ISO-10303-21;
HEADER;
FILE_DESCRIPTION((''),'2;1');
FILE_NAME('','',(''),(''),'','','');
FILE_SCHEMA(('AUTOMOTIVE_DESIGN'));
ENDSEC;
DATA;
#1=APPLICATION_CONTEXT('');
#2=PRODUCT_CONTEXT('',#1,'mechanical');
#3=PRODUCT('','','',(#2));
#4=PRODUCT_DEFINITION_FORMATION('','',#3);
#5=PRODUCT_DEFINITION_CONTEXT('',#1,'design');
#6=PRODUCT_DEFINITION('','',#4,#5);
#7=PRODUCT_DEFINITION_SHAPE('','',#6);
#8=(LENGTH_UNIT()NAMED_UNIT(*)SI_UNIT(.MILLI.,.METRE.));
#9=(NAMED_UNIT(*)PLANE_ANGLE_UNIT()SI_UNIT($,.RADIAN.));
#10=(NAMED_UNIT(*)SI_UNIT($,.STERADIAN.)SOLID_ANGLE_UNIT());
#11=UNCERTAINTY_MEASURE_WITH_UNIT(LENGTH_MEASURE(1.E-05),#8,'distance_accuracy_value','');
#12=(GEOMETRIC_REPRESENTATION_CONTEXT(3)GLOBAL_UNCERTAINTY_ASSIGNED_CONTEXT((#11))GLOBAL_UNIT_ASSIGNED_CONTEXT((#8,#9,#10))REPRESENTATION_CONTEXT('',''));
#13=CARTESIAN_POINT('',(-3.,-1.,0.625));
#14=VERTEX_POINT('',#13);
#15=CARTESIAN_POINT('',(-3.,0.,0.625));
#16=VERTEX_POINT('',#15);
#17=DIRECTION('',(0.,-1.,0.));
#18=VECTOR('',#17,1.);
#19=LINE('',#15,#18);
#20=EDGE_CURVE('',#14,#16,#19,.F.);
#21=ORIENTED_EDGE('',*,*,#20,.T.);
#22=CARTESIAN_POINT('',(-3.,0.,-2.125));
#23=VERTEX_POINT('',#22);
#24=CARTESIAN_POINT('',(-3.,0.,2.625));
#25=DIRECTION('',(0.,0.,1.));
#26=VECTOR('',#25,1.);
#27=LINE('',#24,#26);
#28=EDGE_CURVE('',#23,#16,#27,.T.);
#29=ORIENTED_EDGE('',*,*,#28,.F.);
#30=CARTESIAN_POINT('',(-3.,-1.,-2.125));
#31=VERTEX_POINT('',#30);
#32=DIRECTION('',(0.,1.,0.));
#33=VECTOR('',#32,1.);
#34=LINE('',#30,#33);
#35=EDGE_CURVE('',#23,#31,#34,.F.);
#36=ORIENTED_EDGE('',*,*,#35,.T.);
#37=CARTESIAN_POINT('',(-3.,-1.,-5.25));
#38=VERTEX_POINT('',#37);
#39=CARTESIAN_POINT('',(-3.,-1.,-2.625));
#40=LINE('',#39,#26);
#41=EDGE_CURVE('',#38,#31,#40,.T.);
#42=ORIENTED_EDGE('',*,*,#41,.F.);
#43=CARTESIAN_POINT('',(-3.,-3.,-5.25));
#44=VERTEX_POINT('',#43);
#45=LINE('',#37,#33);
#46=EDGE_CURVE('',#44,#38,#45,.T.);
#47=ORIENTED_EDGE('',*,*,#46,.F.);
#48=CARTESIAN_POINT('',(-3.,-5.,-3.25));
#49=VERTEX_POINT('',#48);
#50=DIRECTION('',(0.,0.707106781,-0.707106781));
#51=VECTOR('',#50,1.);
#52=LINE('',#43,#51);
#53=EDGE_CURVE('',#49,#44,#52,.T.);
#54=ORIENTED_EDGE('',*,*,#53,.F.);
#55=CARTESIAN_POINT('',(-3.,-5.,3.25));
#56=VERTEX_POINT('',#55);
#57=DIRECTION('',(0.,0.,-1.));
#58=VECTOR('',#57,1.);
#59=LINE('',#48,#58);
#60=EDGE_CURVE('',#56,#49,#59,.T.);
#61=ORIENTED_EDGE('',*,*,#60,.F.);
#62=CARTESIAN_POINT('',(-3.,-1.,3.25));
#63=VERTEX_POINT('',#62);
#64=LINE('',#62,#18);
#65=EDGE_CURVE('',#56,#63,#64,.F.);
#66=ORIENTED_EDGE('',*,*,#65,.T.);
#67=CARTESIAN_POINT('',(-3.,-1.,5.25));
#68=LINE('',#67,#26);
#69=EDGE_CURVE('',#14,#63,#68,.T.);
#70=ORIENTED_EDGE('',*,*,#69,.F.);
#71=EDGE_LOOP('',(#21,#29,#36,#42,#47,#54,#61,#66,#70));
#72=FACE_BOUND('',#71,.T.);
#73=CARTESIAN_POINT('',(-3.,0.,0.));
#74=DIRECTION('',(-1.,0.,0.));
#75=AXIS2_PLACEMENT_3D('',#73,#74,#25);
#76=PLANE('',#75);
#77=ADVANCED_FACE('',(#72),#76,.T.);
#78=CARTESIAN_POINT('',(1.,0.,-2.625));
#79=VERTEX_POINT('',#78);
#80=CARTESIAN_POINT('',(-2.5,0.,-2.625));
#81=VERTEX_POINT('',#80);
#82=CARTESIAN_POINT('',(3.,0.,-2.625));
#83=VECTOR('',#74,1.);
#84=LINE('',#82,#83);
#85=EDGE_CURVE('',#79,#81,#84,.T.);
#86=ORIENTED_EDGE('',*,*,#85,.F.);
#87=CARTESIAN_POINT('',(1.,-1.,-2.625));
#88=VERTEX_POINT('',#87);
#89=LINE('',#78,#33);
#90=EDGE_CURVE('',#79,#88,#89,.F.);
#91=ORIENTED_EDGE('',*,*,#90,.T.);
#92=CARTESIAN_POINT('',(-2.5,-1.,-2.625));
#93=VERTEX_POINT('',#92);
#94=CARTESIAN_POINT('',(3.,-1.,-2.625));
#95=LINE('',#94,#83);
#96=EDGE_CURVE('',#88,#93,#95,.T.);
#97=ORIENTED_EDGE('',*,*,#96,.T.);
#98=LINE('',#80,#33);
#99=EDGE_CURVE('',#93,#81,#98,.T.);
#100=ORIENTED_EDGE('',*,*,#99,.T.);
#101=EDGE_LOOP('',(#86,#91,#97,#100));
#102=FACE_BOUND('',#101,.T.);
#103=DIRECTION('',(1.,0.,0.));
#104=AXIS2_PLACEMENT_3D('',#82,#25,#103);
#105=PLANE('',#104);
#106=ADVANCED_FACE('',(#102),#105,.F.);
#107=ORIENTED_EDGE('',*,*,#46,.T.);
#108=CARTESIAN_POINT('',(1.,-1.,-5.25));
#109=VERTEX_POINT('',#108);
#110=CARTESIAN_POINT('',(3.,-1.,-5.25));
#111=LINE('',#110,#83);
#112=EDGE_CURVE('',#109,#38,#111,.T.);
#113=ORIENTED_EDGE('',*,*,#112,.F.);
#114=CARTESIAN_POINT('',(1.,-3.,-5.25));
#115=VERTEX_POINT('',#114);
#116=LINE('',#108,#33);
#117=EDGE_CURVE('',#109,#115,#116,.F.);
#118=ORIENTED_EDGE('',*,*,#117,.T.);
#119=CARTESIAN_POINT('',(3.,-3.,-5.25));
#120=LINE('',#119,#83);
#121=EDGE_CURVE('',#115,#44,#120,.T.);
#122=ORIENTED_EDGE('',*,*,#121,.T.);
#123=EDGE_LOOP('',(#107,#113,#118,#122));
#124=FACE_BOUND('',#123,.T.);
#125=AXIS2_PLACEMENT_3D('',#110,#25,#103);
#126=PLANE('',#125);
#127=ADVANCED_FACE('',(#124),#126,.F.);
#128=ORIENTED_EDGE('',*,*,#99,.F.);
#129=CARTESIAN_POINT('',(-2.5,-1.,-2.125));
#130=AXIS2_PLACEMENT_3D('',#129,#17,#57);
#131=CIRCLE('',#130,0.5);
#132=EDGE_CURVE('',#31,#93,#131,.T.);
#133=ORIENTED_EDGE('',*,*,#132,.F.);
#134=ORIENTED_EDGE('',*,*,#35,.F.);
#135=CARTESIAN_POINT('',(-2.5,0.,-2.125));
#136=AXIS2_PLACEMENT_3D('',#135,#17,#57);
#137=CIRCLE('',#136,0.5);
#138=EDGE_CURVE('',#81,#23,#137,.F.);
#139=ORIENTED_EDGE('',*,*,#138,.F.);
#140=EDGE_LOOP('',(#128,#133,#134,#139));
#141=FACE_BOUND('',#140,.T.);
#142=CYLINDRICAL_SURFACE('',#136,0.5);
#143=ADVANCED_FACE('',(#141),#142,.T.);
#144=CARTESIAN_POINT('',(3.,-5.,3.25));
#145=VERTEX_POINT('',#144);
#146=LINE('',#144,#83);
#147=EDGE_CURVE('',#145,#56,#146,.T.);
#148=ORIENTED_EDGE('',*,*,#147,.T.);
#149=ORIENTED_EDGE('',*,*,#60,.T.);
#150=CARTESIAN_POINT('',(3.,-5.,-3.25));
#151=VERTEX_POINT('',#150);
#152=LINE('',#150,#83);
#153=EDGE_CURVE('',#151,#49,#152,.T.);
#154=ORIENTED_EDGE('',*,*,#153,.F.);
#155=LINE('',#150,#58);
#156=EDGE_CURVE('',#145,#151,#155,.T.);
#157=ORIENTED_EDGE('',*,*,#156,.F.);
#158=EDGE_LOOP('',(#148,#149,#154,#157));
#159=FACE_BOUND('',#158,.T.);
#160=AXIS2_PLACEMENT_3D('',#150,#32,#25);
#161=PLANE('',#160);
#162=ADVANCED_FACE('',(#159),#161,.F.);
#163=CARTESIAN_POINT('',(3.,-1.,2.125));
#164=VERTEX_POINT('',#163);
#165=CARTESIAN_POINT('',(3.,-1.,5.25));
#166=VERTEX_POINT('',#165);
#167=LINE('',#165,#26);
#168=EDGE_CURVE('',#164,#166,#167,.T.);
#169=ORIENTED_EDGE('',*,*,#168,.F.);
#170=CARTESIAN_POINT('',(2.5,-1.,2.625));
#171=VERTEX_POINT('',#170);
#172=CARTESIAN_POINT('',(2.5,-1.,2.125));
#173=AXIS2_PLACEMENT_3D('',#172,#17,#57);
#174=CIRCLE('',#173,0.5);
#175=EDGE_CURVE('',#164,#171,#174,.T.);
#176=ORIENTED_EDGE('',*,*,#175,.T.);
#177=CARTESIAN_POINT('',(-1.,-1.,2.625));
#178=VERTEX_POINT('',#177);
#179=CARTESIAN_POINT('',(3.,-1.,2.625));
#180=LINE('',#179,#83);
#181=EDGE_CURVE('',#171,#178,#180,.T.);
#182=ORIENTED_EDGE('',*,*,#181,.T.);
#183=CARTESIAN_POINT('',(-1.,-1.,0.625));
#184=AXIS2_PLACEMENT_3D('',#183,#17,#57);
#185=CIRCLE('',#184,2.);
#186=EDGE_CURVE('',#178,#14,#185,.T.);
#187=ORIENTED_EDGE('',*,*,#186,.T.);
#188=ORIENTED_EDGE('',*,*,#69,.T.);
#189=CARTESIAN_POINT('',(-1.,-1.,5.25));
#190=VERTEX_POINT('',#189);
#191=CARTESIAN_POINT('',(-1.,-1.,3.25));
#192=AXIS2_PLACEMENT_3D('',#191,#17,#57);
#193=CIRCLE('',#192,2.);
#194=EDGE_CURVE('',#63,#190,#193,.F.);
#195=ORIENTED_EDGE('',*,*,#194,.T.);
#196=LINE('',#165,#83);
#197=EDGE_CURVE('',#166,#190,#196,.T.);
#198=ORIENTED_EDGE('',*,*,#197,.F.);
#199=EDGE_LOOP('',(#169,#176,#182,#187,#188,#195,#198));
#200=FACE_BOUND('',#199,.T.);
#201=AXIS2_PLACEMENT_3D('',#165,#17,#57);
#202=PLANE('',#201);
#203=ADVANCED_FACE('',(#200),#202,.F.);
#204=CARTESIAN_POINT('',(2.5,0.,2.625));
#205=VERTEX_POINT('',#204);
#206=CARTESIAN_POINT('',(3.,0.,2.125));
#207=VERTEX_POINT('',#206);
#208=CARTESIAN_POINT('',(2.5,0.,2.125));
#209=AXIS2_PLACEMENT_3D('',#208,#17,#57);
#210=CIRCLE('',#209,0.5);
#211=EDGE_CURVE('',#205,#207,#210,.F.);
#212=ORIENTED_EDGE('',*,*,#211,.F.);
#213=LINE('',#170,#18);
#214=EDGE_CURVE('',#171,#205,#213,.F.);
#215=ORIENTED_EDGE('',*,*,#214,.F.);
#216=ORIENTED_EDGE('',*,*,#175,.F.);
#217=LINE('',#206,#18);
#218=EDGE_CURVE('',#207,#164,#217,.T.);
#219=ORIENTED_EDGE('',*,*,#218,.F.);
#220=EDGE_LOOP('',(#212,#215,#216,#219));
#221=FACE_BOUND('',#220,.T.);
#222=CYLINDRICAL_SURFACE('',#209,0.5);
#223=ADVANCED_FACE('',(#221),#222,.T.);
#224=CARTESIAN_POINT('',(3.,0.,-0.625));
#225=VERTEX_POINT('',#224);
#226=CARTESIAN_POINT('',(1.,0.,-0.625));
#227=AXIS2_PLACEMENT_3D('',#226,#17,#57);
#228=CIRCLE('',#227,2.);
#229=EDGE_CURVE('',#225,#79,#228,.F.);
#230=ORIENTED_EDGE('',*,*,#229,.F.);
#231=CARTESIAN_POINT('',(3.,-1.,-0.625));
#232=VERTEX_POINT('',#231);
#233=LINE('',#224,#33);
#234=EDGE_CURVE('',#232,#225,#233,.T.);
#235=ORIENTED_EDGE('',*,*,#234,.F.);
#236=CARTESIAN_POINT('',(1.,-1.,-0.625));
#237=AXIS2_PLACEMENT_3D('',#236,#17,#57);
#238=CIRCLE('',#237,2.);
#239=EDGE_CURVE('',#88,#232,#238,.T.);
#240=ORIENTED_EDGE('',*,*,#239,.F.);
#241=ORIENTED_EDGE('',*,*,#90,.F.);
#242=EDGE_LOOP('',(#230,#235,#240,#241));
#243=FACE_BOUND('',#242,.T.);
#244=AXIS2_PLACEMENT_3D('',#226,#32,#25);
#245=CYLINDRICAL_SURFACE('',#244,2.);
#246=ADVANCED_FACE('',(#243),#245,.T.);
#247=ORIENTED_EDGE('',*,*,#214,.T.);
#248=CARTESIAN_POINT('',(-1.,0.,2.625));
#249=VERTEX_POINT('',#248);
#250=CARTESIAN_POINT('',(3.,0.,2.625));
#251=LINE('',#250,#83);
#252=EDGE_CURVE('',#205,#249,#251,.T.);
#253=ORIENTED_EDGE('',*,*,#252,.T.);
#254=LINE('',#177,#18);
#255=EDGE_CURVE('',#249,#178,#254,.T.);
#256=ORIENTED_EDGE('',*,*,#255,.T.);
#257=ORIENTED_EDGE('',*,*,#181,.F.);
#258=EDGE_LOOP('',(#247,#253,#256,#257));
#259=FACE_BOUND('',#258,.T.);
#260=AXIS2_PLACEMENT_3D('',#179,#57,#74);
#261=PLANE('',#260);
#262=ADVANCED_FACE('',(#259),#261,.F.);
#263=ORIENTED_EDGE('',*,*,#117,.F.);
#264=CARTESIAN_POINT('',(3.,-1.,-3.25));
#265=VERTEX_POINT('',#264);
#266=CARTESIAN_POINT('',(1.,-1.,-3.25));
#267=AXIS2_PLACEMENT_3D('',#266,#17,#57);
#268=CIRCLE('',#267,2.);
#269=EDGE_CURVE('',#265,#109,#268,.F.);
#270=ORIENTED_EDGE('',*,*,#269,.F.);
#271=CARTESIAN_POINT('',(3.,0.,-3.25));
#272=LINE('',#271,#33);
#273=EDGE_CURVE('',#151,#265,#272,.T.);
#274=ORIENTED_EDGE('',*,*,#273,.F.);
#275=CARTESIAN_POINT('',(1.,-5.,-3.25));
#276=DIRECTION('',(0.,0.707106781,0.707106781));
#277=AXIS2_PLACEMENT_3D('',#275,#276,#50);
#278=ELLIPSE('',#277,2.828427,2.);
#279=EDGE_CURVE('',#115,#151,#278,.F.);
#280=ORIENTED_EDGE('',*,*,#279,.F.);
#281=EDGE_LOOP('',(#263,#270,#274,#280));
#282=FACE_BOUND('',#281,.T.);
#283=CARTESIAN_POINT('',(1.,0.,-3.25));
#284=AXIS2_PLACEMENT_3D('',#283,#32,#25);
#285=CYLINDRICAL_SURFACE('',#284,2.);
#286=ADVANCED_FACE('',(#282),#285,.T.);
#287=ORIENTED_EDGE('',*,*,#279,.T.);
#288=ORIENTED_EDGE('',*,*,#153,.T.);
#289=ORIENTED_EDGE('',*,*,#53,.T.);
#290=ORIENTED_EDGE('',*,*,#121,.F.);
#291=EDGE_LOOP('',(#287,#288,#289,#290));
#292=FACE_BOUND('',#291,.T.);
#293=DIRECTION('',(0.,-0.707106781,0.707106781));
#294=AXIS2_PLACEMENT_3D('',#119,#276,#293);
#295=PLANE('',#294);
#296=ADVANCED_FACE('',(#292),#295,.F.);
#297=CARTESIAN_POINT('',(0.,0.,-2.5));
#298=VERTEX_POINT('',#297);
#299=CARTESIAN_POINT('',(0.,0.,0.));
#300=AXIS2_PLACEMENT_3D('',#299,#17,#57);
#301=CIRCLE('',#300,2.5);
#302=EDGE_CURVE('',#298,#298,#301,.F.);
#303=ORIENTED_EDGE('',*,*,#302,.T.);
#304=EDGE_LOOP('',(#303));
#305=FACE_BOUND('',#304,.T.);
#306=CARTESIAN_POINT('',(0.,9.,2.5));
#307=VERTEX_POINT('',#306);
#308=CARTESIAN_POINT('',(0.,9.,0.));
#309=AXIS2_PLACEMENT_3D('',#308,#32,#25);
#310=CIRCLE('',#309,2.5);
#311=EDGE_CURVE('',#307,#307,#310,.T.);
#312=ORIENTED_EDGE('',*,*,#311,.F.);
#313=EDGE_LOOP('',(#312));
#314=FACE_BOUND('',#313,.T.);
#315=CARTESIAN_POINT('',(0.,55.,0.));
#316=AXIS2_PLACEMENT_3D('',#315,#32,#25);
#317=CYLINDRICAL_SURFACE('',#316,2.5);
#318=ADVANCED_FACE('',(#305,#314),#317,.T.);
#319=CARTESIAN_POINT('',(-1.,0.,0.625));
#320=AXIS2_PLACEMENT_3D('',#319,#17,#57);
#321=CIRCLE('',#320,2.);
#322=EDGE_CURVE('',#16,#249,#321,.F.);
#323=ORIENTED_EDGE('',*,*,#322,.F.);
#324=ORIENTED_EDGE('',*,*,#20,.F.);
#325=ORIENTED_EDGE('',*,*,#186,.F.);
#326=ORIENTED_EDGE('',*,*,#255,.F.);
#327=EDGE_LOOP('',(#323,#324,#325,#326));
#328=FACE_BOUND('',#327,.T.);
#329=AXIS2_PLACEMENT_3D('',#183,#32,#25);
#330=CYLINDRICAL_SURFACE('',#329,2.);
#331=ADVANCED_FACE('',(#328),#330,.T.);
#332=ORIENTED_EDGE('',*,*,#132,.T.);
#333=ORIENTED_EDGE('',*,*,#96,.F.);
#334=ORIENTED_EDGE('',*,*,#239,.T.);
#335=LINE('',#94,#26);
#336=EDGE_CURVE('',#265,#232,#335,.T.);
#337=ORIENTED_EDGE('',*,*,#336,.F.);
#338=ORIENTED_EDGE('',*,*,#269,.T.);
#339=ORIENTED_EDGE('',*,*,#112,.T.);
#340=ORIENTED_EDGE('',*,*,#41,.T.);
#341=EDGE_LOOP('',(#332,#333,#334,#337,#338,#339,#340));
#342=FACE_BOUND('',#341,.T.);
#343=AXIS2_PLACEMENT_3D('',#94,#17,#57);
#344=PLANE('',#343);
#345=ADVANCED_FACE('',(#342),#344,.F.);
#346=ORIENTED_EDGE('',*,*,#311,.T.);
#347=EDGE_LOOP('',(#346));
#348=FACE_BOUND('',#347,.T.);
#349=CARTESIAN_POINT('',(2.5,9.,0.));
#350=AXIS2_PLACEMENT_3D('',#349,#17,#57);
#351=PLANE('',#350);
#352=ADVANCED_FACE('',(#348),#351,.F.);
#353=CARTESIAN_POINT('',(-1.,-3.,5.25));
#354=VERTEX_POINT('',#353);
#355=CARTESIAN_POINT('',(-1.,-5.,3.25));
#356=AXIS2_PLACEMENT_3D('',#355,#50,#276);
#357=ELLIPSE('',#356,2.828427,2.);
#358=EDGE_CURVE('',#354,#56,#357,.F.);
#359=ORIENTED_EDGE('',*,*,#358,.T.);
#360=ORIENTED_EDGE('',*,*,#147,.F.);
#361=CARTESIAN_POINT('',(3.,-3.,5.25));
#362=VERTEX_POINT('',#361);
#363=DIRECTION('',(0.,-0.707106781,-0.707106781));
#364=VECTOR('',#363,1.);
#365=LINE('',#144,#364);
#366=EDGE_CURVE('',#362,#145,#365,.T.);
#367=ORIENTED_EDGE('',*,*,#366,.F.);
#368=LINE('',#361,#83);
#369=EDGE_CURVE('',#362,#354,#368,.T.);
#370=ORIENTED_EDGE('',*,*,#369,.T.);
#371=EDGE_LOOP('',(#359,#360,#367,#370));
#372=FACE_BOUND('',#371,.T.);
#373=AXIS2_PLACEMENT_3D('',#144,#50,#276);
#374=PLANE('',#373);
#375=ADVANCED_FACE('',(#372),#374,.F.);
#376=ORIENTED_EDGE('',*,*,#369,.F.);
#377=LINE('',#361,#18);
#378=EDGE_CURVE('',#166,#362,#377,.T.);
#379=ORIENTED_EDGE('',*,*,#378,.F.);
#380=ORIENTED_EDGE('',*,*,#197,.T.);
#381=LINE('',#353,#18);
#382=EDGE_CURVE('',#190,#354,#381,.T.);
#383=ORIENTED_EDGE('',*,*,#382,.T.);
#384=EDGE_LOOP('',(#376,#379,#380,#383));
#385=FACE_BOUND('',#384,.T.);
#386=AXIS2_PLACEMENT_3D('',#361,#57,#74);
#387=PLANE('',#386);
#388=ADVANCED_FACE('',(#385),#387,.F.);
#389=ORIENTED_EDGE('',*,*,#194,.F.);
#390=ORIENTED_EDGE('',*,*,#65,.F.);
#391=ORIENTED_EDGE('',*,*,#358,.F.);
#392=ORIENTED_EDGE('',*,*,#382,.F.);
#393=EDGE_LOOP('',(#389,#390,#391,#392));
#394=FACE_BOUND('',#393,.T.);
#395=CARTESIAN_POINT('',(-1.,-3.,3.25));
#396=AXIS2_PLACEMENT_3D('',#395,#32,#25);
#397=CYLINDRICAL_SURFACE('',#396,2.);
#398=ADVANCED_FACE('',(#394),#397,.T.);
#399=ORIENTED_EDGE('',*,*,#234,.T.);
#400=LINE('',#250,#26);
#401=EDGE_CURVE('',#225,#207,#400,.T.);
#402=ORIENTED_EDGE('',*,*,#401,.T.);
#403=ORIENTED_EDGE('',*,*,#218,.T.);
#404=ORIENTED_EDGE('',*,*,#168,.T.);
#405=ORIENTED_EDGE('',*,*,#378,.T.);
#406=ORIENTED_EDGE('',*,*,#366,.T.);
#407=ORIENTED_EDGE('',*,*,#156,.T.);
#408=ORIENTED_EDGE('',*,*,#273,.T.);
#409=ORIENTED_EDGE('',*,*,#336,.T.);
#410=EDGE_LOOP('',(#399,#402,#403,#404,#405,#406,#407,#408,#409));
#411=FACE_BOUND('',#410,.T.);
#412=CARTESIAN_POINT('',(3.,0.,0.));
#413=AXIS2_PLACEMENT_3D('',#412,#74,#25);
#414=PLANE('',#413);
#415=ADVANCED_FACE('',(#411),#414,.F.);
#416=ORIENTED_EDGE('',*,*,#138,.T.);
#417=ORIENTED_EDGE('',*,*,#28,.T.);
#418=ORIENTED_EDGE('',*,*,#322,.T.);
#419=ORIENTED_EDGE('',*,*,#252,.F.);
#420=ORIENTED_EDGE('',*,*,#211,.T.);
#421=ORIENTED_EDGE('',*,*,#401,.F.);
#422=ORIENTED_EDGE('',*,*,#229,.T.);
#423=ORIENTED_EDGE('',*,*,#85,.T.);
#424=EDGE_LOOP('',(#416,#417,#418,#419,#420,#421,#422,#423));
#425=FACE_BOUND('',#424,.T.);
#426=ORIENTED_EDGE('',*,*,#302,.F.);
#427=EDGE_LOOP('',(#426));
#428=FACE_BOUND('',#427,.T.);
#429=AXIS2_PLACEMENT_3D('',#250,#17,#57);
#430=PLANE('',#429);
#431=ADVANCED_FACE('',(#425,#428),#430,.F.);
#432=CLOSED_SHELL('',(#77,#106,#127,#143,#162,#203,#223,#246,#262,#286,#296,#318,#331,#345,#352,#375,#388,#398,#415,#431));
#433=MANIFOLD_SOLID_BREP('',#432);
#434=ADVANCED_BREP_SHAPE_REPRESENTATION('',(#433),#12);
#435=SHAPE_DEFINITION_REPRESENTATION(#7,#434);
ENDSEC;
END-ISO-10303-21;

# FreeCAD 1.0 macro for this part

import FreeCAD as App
import Part
import Sketcher

V = App.Vector
Q = App.Units.Quantity


def edges_at(feature, points):
    """Names of the edges that pass closest to the given points."""
    edges = feature.Shape.Edges
    near = lambda p: min(range(len(edges)), key=lambda i: edges[i].distToShape(Part.Vertex(*p))[0])
    return sorted({f"Edge{near(p) + 1}" for p in points})


def add_polygon(sketch, points):
    """Adds a closed chain of lines whose ends are joined by coincident constraints."""
    first, n = sketch.GeometryCount, len(points)
    for a, b in zip(points, points[1:] + points[:1]):
        sketch.addGeometry(Part.LineSegment(App.Vector(*a, 0), App.Vector(*b, 0)), False)
    for i in range(n):
        sketch.addConstraint(Sketcher.Constraint("Coincident", first + i, 2, first + (i + 1) % n, 1))

doc = App.newDocument("Part")
params = doc.addObject("Spreadsheet::Sheet", "Params")
for row, (alias, value) in enumerate([
    ("sketch1_width", "1 mm"),
    ("sketch1_width2", "2 mm"),
    ("sketch1_height", "6.5 mm"),
    ("sketch1_height2", "5.25 mm"),
    ("pad1_length", "6 mm"),
    ("fillet_radius", "2 mm"),
    ("fillet2_radius", "2 mm"),
    ("fillet3_radius", "0.5 mm"),
    ("sketch2_height", "9 mm"),
    ("sketch2_width", "2.5 mm"),
    ("revolution_angle", "360 deg"),
], start=1):
    params.set(f"A{row}", alias)
    params.set(f"B{row}", "=" + value)
    params.setAlias(f"B{row}", alias)

body = doc.addObject("PartDesign::Body", "Body")

# Sketch on YZ plane
sketch1 = body.newObject("Sketcher::SketchObject", "Sketch")
sketch1.AttachmentSupport = (doc.getObject("YZ_Plane"), [""])
sketch1.MapMode = "FlatFace"
add_polygon(sketch1, [(0, -2.6), (0, 2.6), (-1, 2.6), (-1, 5.2), (-3, 5.2), (-5, 3.2), (-5, -3.2), (-3, -5.2), (-1, -5.2), (-1, -2.6)])  # lines 0-9
sketch1.addConstraint(Sketcher.Constraint("Vertical", 0))
sketch1.addConstraint(Sketcher.Constraint("Horizontal", 1))
sketch1.addConstraint(Sketcher.Constraint("Vertical", 2))
sketch1.addConstraint(Sketcher.Constraint("Horizontal", 3))
sketch1.addConstraint(Sketcher.Constraint("Vertical", 5))
sketch1.addConstraint(Sketcher.Constraint("Horizontal", 7))
sketch1.addConstraint(Sketcher.Constraint("Vertical", 8))
sketch1.addConstraint(Sketcher.Constraint("Horizontal", 9))
sketch1.addConstraint(Sketcher.Constraint("Symmetric", 0, 2, 9, 2, -1, 1))
sketch1.addConstraint(Sketcher.Constraint("Symmetric", 3, 2, 6, 2, -1))
sketch1.addConstraint(Sketcher.Constraint("Perpendicular", 4, 6))
sketch1.addConstraint(Sketcher.Constraint("Vertical", 2, 2, 7, 2))
sketch1.addConstraint(Sketcher.Constraint("Equal", 4, 6))
sketch1.addConstraint(Sketcher.Constraint("DistanceX", 1, 2, 1, 1, Q("1 mm")))
sketch1.addConstraint(Sketcher.Constraint("DistanceX", 3, 2, 3, 1, Q("2 mm")))
sketch1.addConstraint(Sketcher.Constraint("DistanceY", 5, 2, 5, 1, Q("6.5 mm")))
sketch1.addConstraint(Sketcher.Constraint("DistanceX", 4, 2, -1, 1, Q("5 mm")))
sketch1.addConstraint(Sketcher.Constraint("DistanceY", 0, 1, 0, 2, Q("5.25 mm")))
sketch1.setExpression("Constraints[23]", "Params.sketch1_width")
sketch1.setExpression("Constraints[24]", "Params.sketch1_width2")
sketch1.setExpression("Constraints[25]", "Params.sketch1_height")
sketch1.setExpression("Constraints[27]", "Params.sketch1_height2")
pad1 = body.newObject("PartDesign::Pad", "Pad")
pad1.Profile = sketch1
pad1.setExpression("Length", "Params.pad1_length")
pad1.Midplane = True
doc.recompute()

fillet = body.newObject("PartDesign::Fillet", "Fillet")
fillet.Base = (pad1, edges_at(pad1, [(3, -2, -5.25), (-3, -2, 5.25)]))
fillet.setExpression("Radius", "Params.fillet_radius")
doc.recompute()

fillet2 = body.newObject("PartDesign::Fillet", "Fillet001")
fillet2.Base = (fillet, edges_at(fillet, [(-3, -0.5, 2.625), (3, -0.5, -2.625)]))
fillet2.setExpression("Radius", "Params.fillet2_radius")
doc.recompute()

fillet3 = body.newObject("PartDesign::Fillet", "Fillet002")
fillet3.Base = (fillet2, edges_at(fillet2, [(3, -0.5, 2.625), (-3, -0.5, -2.625)]))
fillet3.setExpression("Radius", "Params.fillet3_radius")

# Sketch on XY plane
sketch2 = body.newObject("Sketcher::SketchObject", "Sketch001")
sketch2.AttachmentSupport = (doc.getObject("XY_Plane"), [""])
sketch2.MapMode = "FlatFace"
add_polygon(sketch2, [(0, 9), (0, 0), (2.5, 0), (2.5, 9)])  # lines 0-3
sketch2.addConstraint(Sketcher.Constraint("Vertical", 0))
sketch2.addConstraint(Sketcher.Constraint("Horizontal", 1))
sketch2.addConstraint(Sketcher.Constraint("Vertical", 2))
sketch2.addConstraint(Sketcher.Constraint("Horizontal", 3))
sketch2.addConstraint(Sketcher.Constraint("Coincident", 0, 2, -1, 1))
sketch2.addConstraint(Sketcher.Constraint("DistanceY", 0, 2, 0, 1, Q("9 mm")))
sketch2.addConstraint(Sketcher.Constraint("DistanceX", 1, 1, 1, 2, Q("2.5 mm")))
sketch2.setExpression("Constraints[9]", "Params.sketch2_height")
sketch2.setExpression("Constraints[10]", "Params.sketch2_width")
revolution = body.newObject("PartDesign::Revolution", "Revolution")
revolution.Profile = sketch2
revolution.ReferenceAxis = (sketch2, ["V_Axis"])
revolution.setExpression("Angle", "Params.revolution_angle")

doc.recompute()
